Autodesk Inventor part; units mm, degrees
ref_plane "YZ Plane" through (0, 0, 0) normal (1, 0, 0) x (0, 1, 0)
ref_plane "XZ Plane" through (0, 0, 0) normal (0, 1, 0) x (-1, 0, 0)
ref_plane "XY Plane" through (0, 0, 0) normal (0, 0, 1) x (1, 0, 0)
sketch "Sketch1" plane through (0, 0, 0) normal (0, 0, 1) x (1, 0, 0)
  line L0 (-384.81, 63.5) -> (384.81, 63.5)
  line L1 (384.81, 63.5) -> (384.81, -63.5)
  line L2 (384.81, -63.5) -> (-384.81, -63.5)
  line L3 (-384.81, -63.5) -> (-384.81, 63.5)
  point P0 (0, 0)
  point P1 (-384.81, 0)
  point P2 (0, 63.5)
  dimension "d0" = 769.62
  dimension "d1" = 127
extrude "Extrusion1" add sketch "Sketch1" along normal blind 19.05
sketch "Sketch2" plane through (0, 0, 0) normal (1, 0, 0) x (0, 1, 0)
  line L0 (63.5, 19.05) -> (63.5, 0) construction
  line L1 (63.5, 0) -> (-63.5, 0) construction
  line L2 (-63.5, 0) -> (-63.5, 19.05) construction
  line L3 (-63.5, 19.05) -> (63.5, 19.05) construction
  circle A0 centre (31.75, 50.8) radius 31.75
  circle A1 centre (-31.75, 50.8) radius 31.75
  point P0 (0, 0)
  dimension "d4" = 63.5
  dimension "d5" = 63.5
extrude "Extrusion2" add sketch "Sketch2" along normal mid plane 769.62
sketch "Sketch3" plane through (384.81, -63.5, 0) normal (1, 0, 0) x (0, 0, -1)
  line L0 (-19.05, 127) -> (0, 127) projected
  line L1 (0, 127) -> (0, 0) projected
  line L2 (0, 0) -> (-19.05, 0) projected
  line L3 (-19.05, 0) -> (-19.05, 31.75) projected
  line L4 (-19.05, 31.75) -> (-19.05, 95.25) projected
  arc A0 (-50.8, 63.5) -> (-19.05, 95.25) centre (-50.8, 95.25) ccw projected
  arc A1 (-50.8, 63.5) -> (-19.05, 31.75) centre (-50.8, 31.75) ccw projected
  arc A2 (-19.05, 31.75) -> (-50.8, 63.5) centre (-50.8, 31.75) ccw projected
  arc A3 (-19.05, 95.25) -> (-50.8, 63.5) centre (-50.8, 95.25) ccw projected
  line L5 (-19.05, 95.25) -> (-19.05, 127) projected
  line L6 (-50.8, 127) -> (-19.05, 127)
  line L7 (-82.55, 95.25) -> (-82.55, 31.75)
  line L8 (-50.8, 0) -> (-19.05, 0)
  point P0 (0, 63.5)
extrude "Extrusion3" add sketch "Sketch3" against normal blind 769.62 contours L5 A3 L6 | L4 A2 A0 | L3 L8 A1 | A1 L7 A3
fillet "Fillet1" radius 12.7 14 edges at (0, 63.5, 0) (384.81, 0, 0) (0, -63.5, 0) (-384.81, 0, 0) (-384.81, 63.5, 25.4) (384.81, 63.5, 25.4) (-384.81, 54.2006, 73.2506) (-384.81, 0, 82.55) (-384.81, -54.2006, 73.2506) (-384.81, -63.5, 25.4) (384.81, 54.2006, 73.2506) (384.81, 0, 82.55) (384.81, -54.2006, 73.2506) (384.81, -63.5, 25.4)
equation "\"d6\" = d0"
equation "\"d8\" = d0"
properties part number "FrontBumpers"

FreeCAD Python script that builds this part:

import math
import FreeCAD as App
import Part
import Sketcher
Q = App.Units.Quantity

doc = App.newDocument("Part")
body = doc.addObject("PartDesign::Body", "Body")
body.AllowCompound = True

sketch1 = body.newObject("Sketcher::SketchObject", "Sketch")
sketch1.AttachmentSupport = (doc.getObject("XY_Plane"), [""])
sketch1.MapMode = "FlatFace"
sketch1.addGeometry([
    Part.LineSegment(App.Vector(385, 64, 0), App.Vector(-385, 64, 0)),
    Part.LineSegment(App.Vector(-385, 64, 0), App.Vector(-385, -64, 0)),
    Part.LineSegment(App.Vector(-385, -64, 0), App.Vector(385, -64, 0)),
    Part.LineSegment(App.Vector(385, -64, 0), App.Vector(385, 64, 0)),
], False)
sketch1.addConstraint([
    Sketcher.Constraint("Coincident", 0, 2, 1, 1),
    Sketcher.Constraint("Coincident", 1, 2, 2, 1),
    Sketcher.Constraint("Coincident", 2, 2, 3, 1),
    Sketcher.Constraint("Coincident", 3, 2, 0, 1),
    Sketcher.Constraint("Horizontal", 0),
    Sketcher.Constraint("Vertical", 1),
    Sketcher.Constraint("Horizontal", 2),
    Sketcher.Constraint("Vertical", 3),
    Sketcher.Constraint("Symmetric", 0, 2, 2, 2, -1, 1),
    Sketcher.Constraint("DistanceY", 1, 2, 1, 1, Q("5 in")),
    Sketcher.Constraint("DistanceX", 0, 2, 0, 1, Q("30.3 in")),
])
pad1 = body.newObject("PartDesign::Pad", "Pad")
pad1.Profile = sketch1
pad1.Length = Q("0.75 in")

sketch2 = body.newObject("Sketcher::SketchObject", "Sketch001")
sketch2.AttachmentSupport = (doc.getObject("YZ_Plane"), [""])
sketch2.MapMode = "FlatFace"
sketch2.addGeometry([
    Part.Circle(App.Vector(32, 51, 0), App.Vector(0, 0, 1), 32),
    Part.Circle(App.Vector(-32, 51, 0), App.Vector(0, 0, 1), 32),
], False)
sketch2.addConstraint([
    Sketcher.Constraint("Equal", 0, 1),
    Sketcher.Constraint("Symmetric", 0, 3, 1, 3, -2),
    Sketcher.Constraint("Diameter", 0, Q("2.5 in")),
    Sketcher.Constraint("DistanceX", 1, 3, 0, 3, Q("2.5 in")),
    Sketcher.Constraint("DistanceY", -1, 1, 0, 3, Q("2 in")),
])
pad2 = body.newObject("PartDesign::Pad", "Pad001")
pad2.Profile = sketch2
pad2.Length = Q("30.3 in")
pad2.Midplane = True

sketch3 = body.newObject("Sketcher::SketchObject", "Sketch002")
sketch3.AttachmentSupport = (doc.getObject("YZ_Plane"), [""])
sketch3.MapMode = "FlatFace"
sketch3.AttachmentOffset = App.Placement(App.Vector(0, 0, 15.15 * 25.4), App.Rotation())
sketch3.addGeometry([
    Part.LineSegment(App.Vector(32, 19, 0), App.Vector(64, 19, 0)),
    Part.LineSegment(App.Vector(64, 19, 0), App.Vector(64, 51, 0)),
    Part.ArcOfCircle(Part.Circle(App.Vector(32, 51, 0), App.Vector(0, 0, 1), 32), math.radians(-90), math.radians(0)),
    Part.LineSegment(App.Vector(-32, 19, 0), App.Vector(32, 19, 0)),
    Part.ArcOfCircle(Part.Circle(App.Vector(32, 51, 0), App.Vector(0, 0, 1), 32), math.radians(180), math.radians(270)),
    Part.ArcOfCircle(Part.Circle(App.Vector(-32, 51, 0), App.Vector(0, 0, 1), 32), math.radians(-90), math.radians(0)),
    Part.LineSegment(App.Vector(-64, 19, 0), App.Vector(-32, 19, 0)),
    Part.ArcOfCircle(Part.Circle(App.Vector(-32, 51, 0), App.Vector(0, 0, 1), 32), math.radians(180), math.radians(270)),
    Part.LineSegment(App.Vector(-64, 51, 0), App.Vector(-64, 19, 0)),
    Part.ArcOfCircle(Part.Circle(App.Vector(-32, 51, 0), App.Vector(0, 0, 1), 32), math.radians(0), math.radians(90)),
    Part.ArcOfCircle(Part.Circle(App.Vector(32, 51, 0), App.Vector(0, 0, 1), 32), math.radians(90), math.radians(180)),
    Part.LineSegment(App.Vector(32, 83, 0), App.Vector(-32, 83, 0)),
], False)
sketch3.addConstraint([
    Sketcher.Constraint("Coincident", 0, 2, 1, 1),
    Sketcher.Constraint("Tangent", 1, 2, 2, 2),
    Sketcher.Constraint("Tangent", 2, 1, 0, 1),
    Sketcher.Constraint("Tangent", 3, 2, 4, 2),
    Sketcher.Constraint("Tangent", 4, 1, 5, 2),
    Sketcher.Constraint("Tangent", 5, 1, 3, 1),
    Sketcher.Constraint("Tangent", 6, 2, 7, 2),
    Sketcher.Constraint("Tangent", 7, 1, 8, 1),
    Sketcher.Constraint("Coincident", 8, 2, 6, 1),
    Sketcher.Constraint("Tangent", 9, 1, 10, 2),
    Sketcher.Constraint("Tangent", 10, 1, 11, 1),
    Sketcher.Constraint("Tangent", 11, 2, 9, 2),
    Sketcher.Constraint("Horizontal", 0),
    Sketcher.Constraint("Vertical", 1),
    Sketcher.Constraint("Horizontal", 3),
    Sketcher.Constraint("Horizontal", 6),
    Sketcher.Constraint("Vertical", 8),
    Sketcher.Constraint("Horizontal", 11),
    Sketcher.Constraint("Coincident", 4, 3, 2, 3),
    Sketcher.Constraint("Coincident", 7, 3, 5, 3),
    Sketcher.Constraint("Coincident", 9, 3, 5, 3),
    Sketcher.Constraint("Coincident", 10, 3, 2, 3),
    Sketcher.Constraint("Equal", 2, 4),
    Sketcher.Constraint("Equal", 4, 5),
    Sketcher.Constraint("Equal", 5, 7),
    Sketcher.Constraint("PointOnObject", 4, 1, -2),
    Sketcher.Constraint("Radius", 2, Q("1.25 in")),
    Sketcher.Constraint("DistanceY", -1, 1, 2, 3, Q("2 in")),
])
pad3 = body.newObject("PartDesign::Pad", "Pad002")
pad3.Profile = sketch3
pad3.Length = Q("30.3 in")
pad3.Reversed = True
doc.recompute()

fillet = body.newObject("PartDesign::Fillet", "Fillet")
fillet.Base = (pad3, ["Edge1"])
fillet.UseAllEdges = True
fillet.Radius = Q("0.5 in")

doc.recompute()
